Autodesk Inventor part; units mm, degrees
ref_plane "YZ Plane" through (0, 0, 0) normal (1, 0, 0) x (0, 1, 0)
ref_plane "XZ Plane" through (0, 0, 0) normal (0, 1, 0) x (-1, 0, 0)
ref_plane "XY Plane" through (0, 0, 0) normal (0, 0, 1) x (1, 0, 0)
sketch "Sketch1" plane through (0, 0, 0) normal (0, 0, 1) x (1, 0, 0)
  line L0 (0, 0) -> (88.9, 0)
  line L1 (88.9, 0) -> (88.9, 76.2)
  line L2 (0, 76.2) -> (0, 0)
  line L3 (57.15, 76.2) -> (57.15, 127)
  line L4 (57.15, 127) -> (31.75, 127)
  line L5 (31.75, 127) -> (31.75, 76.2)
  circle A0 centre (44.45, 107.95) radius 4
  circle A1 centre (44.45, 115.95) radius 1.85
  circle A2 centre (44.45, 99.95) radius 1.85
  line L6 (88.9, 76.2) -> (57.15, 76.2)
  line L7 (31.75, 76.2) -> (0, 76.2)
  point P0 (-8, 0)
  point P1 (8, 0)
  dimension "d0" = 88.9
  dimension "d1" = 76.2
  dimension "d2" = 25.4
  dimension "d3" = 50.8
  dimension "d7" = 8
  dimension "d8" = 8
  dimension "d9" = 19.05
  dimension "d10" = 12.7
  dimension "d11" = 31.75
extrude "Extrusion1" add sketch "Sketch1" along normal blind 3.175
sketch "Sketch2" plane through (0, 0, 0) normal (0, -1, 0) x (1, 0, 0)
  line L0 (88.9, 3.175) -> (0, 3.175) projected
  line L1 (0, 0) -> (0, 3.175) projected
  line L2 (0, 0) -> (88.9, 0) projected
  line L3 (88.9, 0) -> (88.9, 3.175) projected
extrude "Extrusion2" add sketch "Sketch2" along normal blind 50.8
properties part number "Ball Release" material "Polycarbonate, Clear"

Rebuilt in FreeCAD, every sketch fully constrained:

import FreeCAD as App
import Part
import Sketcher
from FreeCAD import Vector
Q = App.Units.Quantity


def add_polygon(sketch, points):
    """Adds a closed chain of lines whose ends are joined by coincident constraints."""
    first, n = sketch.GeometryCount, len(points)
    for a, b in zip(points, points[1:] + points[:1]):
        sketch.addGeometry(Part.LineSegment(App.Vector(*a, 0), App.Vector(*b, 0)), False)
    for i in range(n):
        sketch.addConstraint(Sketcher.Constraint("Coincident", first + i, 2, first + (i + 1) % n, 1))

doc = App.newDocument("Part")
body = doc.addObject("PartDesign::Body", "Body")

sketch1 = body.newObject("Sketcher::SketchObject", "Sketch")
sketch1.AttachmentSupport = (doc.getObject("XY_Plane"), [""])
sketch1.MapMode = "FlatFace"
add_polygon(sketch1, [(0, 76.2), (0, 0), (88.9, 0), (88.9, 76.2), (57.1, 76.2), (57.1, 127), (31.8, 127), (31.8, 76.2)])
sketch1.addGeometry(Part.Circle(Vector(44.5, 100, 0), Vector(0, 0, 1), 1.9), False)
sketch1.addGeometry(Part.Circle(Vector(44.5, 108, 0), Vector(0, 0, 1), 4), False)
sketch1.addGeometry(Part.Circle(Vector(44.5, 116, 0), Vector(0, 0, 1), 1.9), False)
sketch1.addConstraint(Sketcher.Constraint("Vertical", 0))
sketch1.addConstraint(Sketcher.Constraint("Horizontal", 1))
sketch1.addConstraint(Sketcher.Constraint("Vertical", 2))
sketch1.addConstraint(Sketcher.Constraint("Horizontal", 3))
sketch1.addConstraint(Sketcher.Constraint("Vertical", 4))
sketch1.addConstraint(Sketcher.Constraint("Horizontal", 5))
sketch1.addConstraint(Sketcher.Constraint("Vertical", 6))
sketch1.addConstraint(Sketcher.Constraint("Horizontal", 7))
sketch1.addConstraint(Sketcher.Constraint("Coincident", 0, 2, -1, 1))
sketch1.addConstraint(Sketcher.Constraint("Equal", 8, 10))
sketch1.addConstraint(Sketcher.Constraint("Horizontal", 3, 2, 6, 2))
sketch1.addConstraint(Sketcher.Constraint("Vertical", 8, 3, 9, 3))
sketch1.addConstraint(Sketcher.Constraint("Vertical", 9, 3, 10, 3))
sketch1.addConstraint(Sketcher.Constraint("Equal", 3, 7))
sketch1.addConstraint(Sketcher.Constraint("DistanceX", 5, 2, 5, 1, Q("1 in")))
sketch1.addConstraint(Sketcher.Constraint("DistanceY", 0, 2, 0, 1, Q("3 in")))
sketch1.addConstraint(Sketcher.Constraint("DistanceY", 4, 1, 4, 2, Q("2 in")))
sketch1.addConstraint(Sketcher.Constraint("DistanceX", 1, 1, 1, 2, Q("3.5 in")))
sketch1.addConstraint(Sketcher.Constraint("DistanceX", 8, 3, 3, 2, Q("0.5 in")))
sketch1.addConstraint(Sketcher.Constraint("Diameter", 9, Q("8 mm")))
sketch1.addConstraint(Sketcher.Constraint("DistanceY", 2, 2, 9, 3, Q("1.25 in")))
sketch1.addConstraint(Sketcher.Constraint("Diameter", 8, Q("3.7 mm")))
sketch1.addConstraint(Sketcher.Constraint("DistanceY", 8, 3, 9, 3, Q("8 mm")))
sketch1.addConstraint(Sketcher.Constraint("DistanceY", 9, 3, 10, 3, Q("8 mm")))
pad1 = body.newObject("PartDesign::Pad", "Pad")
pad1.Profile = sketch1
pad1.Length = Q("0.125 in")

sketch2 = body.newObject("Sketcher::SketchObject", "Sketch001")
sketch2.AttachmentSupport = (doc.getObject("XZ_Plane"), [""])
sketch2.MapMode = "FlatFace"
add_polygon(sketch2, [(88.9, 0), (88.9, 3.2), (0, 3.2), (0, 0)])
sketch2.addConstraint(Sketcher.Constraint("Vertical", 0))
sketch2.addConstraint(Sketcher.Constraint("Horizontal", 1))
sketch2.addConstraint(Sketcher.Constraint("Vertical", 2))
sketch2.addConstraint(Sketcher.Constraint("Horizontal", 3))
sketch2.addConstraint(Sketcher.Constraint("Coincident", 2, 2, -1, 1))
sketch2.addConstraint(Sketcher.Constraint("DistanceX", 1, 2, 1, 1, Q("3.5 in")))
sketch2.addConstraint(Sketcher.Constraint("DistanceY", 0, 1, 0, 2, Q("0.125 in")))
pad2 = body.newObject("PartDesign::Pad", "Pad001")
pad2.Profile = sketch2
pad2.Length = Q("2 in")

doc.recompute()
